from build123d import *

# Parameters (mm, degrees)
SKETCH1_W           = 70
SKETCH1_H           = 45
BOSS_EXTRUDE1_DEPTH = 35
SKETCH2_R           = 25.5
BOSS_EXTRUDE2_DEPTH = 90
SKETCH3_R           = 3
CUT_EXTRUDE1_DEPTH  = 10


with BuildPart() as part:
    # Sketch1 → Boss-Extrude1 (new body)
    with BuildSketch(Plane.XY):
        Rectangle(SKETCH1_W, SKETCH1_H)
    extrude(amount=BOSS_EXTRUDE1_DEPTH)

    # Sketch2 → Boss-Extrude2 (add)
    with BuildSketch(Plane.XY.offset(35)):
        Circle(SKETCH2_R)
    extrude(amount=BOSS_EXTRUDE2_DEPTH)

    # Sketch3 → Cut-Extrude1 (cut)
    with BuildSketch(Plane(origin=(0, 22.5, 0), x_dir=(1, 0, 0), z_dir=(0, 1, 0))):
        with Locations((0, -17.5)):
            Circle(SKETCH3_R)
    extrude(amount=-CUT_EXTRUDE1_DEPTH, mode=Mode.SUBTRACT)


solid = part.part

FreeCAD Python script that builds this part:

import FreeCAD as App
import Part
import Sketcher
from FreeCAD import Vector

doc = App.newDocument("Part")
body = doc.addObject("PartDesign::Body", "Body")

# Sketch on XY plane
sketch1 = body.newObject("Sketcher::SketchObject", "Sketch")
sketch1.AttachmentSupport = (doc.getObject("XY_Plane"), [""])
sketch1.MapMode = "FlatFace"
sketch1.addGeometry([
    Part.LineSegment(Vector(-35, 22, 0), Vector(-35, -22, 0)),
    Part.LineSegment(Vector(-35, -22, 0), Vector(35, -22, 0)),
    Part.LineSegment(Vector(35, -22, 0), Vector(35, 22, 0)),
    Part.LineSegment(Vector(35, 22, 0), Vector(-35, 22, 0)),
], False)
sketch1.addConstraint([
    Sketcher.Constraint("Coincident", 0, 2, 1, 1),
    Sketcher.Constraint("Coincident", 1, 2, 2, 1),
    Sketcher.Constraint("Coincident", 2, 2, 3, 1),
    Sketcher.Constraint("Coincident", 3, 2, 0, 1),
    Sketcher.Constraint("Vertical", 0),
    Sketcher.Constraint("Horizontal", 1),
    Sketcher.Constraint("Vertical", 2),
    Sketcher.Constraint("Horizontal", 3),
    Sketcher.Constraint("Symmetric", 0, 2, 2, 2, -1, 1),
    Sketcher.Constraint("DistanceX", 1, 1, 1, 2, 70.0),
    Sketcher.Constraint("DistanceY", 0, 2, 0, 1, 45.0),
])
pad1 = body.newObject("PartDesign::Pad", "Pad")
pad1.Profile = sketch1
pad1.Length = 35

# Sketch on XY plane
sketch2 = body.newObject("Sketcher::SketchObject", "Sketch001")
sketch2.AttachmentSupport = (doc.getObject("XY_Plane"), [""])
sketch2.MapMode = "FlatFace"
sketch2.AttachmentOffset = App.Placement(Vector(0, 0, 35), App.Rotation())
sketch2.addGeometry(Part.Circle(Vector(0, 0, 0), Vector(0, 0, 1), 26), False)
sketch2.addConstraint([
    Sketcher.Constraint("Coincident", 0, 3, -1, 1),
    Sketcher.Constraint("Diameter", 0, 51.0),
])
pad2 = body.newObject("PartDesign::Pad", "Pad001")
pad2.Profile = sketch2
pad2.Length = 90

# Sketch on XZ plane
sketch3 = body.newObject("Sketcher::SketchObject", "Sketch002")
sketch3.AttachmentSupport = (doc.getObject("XZ_Plane"), [""])
sketch3.MapMode = "FlatFace"
sketch3.AttachmentOffset = App.Placement(Vector(0, 0, -22.5), App.Rotation())
sketch3.addGeometry(Part.Circle(Vector(0, 17.5, 0), Vector(0, 0, 1), 3), False)
sketch3.addConstraint([
    Sketcher.Constraint("PointOnObject", 0, 3, -2),
    Sketcher.Constraint("Diameter", 0, 6.0),
    Sketcher.Constraint("DistanceY", -1, 1, 0, 3, 17.5),
])
pocket1 = body.newObject("PartDesign::Pocket", "Pocket")
pocket1.Profile = sketch3
pocket1.Length = 10
pocket1.Reversed = True

doc.recompute()
